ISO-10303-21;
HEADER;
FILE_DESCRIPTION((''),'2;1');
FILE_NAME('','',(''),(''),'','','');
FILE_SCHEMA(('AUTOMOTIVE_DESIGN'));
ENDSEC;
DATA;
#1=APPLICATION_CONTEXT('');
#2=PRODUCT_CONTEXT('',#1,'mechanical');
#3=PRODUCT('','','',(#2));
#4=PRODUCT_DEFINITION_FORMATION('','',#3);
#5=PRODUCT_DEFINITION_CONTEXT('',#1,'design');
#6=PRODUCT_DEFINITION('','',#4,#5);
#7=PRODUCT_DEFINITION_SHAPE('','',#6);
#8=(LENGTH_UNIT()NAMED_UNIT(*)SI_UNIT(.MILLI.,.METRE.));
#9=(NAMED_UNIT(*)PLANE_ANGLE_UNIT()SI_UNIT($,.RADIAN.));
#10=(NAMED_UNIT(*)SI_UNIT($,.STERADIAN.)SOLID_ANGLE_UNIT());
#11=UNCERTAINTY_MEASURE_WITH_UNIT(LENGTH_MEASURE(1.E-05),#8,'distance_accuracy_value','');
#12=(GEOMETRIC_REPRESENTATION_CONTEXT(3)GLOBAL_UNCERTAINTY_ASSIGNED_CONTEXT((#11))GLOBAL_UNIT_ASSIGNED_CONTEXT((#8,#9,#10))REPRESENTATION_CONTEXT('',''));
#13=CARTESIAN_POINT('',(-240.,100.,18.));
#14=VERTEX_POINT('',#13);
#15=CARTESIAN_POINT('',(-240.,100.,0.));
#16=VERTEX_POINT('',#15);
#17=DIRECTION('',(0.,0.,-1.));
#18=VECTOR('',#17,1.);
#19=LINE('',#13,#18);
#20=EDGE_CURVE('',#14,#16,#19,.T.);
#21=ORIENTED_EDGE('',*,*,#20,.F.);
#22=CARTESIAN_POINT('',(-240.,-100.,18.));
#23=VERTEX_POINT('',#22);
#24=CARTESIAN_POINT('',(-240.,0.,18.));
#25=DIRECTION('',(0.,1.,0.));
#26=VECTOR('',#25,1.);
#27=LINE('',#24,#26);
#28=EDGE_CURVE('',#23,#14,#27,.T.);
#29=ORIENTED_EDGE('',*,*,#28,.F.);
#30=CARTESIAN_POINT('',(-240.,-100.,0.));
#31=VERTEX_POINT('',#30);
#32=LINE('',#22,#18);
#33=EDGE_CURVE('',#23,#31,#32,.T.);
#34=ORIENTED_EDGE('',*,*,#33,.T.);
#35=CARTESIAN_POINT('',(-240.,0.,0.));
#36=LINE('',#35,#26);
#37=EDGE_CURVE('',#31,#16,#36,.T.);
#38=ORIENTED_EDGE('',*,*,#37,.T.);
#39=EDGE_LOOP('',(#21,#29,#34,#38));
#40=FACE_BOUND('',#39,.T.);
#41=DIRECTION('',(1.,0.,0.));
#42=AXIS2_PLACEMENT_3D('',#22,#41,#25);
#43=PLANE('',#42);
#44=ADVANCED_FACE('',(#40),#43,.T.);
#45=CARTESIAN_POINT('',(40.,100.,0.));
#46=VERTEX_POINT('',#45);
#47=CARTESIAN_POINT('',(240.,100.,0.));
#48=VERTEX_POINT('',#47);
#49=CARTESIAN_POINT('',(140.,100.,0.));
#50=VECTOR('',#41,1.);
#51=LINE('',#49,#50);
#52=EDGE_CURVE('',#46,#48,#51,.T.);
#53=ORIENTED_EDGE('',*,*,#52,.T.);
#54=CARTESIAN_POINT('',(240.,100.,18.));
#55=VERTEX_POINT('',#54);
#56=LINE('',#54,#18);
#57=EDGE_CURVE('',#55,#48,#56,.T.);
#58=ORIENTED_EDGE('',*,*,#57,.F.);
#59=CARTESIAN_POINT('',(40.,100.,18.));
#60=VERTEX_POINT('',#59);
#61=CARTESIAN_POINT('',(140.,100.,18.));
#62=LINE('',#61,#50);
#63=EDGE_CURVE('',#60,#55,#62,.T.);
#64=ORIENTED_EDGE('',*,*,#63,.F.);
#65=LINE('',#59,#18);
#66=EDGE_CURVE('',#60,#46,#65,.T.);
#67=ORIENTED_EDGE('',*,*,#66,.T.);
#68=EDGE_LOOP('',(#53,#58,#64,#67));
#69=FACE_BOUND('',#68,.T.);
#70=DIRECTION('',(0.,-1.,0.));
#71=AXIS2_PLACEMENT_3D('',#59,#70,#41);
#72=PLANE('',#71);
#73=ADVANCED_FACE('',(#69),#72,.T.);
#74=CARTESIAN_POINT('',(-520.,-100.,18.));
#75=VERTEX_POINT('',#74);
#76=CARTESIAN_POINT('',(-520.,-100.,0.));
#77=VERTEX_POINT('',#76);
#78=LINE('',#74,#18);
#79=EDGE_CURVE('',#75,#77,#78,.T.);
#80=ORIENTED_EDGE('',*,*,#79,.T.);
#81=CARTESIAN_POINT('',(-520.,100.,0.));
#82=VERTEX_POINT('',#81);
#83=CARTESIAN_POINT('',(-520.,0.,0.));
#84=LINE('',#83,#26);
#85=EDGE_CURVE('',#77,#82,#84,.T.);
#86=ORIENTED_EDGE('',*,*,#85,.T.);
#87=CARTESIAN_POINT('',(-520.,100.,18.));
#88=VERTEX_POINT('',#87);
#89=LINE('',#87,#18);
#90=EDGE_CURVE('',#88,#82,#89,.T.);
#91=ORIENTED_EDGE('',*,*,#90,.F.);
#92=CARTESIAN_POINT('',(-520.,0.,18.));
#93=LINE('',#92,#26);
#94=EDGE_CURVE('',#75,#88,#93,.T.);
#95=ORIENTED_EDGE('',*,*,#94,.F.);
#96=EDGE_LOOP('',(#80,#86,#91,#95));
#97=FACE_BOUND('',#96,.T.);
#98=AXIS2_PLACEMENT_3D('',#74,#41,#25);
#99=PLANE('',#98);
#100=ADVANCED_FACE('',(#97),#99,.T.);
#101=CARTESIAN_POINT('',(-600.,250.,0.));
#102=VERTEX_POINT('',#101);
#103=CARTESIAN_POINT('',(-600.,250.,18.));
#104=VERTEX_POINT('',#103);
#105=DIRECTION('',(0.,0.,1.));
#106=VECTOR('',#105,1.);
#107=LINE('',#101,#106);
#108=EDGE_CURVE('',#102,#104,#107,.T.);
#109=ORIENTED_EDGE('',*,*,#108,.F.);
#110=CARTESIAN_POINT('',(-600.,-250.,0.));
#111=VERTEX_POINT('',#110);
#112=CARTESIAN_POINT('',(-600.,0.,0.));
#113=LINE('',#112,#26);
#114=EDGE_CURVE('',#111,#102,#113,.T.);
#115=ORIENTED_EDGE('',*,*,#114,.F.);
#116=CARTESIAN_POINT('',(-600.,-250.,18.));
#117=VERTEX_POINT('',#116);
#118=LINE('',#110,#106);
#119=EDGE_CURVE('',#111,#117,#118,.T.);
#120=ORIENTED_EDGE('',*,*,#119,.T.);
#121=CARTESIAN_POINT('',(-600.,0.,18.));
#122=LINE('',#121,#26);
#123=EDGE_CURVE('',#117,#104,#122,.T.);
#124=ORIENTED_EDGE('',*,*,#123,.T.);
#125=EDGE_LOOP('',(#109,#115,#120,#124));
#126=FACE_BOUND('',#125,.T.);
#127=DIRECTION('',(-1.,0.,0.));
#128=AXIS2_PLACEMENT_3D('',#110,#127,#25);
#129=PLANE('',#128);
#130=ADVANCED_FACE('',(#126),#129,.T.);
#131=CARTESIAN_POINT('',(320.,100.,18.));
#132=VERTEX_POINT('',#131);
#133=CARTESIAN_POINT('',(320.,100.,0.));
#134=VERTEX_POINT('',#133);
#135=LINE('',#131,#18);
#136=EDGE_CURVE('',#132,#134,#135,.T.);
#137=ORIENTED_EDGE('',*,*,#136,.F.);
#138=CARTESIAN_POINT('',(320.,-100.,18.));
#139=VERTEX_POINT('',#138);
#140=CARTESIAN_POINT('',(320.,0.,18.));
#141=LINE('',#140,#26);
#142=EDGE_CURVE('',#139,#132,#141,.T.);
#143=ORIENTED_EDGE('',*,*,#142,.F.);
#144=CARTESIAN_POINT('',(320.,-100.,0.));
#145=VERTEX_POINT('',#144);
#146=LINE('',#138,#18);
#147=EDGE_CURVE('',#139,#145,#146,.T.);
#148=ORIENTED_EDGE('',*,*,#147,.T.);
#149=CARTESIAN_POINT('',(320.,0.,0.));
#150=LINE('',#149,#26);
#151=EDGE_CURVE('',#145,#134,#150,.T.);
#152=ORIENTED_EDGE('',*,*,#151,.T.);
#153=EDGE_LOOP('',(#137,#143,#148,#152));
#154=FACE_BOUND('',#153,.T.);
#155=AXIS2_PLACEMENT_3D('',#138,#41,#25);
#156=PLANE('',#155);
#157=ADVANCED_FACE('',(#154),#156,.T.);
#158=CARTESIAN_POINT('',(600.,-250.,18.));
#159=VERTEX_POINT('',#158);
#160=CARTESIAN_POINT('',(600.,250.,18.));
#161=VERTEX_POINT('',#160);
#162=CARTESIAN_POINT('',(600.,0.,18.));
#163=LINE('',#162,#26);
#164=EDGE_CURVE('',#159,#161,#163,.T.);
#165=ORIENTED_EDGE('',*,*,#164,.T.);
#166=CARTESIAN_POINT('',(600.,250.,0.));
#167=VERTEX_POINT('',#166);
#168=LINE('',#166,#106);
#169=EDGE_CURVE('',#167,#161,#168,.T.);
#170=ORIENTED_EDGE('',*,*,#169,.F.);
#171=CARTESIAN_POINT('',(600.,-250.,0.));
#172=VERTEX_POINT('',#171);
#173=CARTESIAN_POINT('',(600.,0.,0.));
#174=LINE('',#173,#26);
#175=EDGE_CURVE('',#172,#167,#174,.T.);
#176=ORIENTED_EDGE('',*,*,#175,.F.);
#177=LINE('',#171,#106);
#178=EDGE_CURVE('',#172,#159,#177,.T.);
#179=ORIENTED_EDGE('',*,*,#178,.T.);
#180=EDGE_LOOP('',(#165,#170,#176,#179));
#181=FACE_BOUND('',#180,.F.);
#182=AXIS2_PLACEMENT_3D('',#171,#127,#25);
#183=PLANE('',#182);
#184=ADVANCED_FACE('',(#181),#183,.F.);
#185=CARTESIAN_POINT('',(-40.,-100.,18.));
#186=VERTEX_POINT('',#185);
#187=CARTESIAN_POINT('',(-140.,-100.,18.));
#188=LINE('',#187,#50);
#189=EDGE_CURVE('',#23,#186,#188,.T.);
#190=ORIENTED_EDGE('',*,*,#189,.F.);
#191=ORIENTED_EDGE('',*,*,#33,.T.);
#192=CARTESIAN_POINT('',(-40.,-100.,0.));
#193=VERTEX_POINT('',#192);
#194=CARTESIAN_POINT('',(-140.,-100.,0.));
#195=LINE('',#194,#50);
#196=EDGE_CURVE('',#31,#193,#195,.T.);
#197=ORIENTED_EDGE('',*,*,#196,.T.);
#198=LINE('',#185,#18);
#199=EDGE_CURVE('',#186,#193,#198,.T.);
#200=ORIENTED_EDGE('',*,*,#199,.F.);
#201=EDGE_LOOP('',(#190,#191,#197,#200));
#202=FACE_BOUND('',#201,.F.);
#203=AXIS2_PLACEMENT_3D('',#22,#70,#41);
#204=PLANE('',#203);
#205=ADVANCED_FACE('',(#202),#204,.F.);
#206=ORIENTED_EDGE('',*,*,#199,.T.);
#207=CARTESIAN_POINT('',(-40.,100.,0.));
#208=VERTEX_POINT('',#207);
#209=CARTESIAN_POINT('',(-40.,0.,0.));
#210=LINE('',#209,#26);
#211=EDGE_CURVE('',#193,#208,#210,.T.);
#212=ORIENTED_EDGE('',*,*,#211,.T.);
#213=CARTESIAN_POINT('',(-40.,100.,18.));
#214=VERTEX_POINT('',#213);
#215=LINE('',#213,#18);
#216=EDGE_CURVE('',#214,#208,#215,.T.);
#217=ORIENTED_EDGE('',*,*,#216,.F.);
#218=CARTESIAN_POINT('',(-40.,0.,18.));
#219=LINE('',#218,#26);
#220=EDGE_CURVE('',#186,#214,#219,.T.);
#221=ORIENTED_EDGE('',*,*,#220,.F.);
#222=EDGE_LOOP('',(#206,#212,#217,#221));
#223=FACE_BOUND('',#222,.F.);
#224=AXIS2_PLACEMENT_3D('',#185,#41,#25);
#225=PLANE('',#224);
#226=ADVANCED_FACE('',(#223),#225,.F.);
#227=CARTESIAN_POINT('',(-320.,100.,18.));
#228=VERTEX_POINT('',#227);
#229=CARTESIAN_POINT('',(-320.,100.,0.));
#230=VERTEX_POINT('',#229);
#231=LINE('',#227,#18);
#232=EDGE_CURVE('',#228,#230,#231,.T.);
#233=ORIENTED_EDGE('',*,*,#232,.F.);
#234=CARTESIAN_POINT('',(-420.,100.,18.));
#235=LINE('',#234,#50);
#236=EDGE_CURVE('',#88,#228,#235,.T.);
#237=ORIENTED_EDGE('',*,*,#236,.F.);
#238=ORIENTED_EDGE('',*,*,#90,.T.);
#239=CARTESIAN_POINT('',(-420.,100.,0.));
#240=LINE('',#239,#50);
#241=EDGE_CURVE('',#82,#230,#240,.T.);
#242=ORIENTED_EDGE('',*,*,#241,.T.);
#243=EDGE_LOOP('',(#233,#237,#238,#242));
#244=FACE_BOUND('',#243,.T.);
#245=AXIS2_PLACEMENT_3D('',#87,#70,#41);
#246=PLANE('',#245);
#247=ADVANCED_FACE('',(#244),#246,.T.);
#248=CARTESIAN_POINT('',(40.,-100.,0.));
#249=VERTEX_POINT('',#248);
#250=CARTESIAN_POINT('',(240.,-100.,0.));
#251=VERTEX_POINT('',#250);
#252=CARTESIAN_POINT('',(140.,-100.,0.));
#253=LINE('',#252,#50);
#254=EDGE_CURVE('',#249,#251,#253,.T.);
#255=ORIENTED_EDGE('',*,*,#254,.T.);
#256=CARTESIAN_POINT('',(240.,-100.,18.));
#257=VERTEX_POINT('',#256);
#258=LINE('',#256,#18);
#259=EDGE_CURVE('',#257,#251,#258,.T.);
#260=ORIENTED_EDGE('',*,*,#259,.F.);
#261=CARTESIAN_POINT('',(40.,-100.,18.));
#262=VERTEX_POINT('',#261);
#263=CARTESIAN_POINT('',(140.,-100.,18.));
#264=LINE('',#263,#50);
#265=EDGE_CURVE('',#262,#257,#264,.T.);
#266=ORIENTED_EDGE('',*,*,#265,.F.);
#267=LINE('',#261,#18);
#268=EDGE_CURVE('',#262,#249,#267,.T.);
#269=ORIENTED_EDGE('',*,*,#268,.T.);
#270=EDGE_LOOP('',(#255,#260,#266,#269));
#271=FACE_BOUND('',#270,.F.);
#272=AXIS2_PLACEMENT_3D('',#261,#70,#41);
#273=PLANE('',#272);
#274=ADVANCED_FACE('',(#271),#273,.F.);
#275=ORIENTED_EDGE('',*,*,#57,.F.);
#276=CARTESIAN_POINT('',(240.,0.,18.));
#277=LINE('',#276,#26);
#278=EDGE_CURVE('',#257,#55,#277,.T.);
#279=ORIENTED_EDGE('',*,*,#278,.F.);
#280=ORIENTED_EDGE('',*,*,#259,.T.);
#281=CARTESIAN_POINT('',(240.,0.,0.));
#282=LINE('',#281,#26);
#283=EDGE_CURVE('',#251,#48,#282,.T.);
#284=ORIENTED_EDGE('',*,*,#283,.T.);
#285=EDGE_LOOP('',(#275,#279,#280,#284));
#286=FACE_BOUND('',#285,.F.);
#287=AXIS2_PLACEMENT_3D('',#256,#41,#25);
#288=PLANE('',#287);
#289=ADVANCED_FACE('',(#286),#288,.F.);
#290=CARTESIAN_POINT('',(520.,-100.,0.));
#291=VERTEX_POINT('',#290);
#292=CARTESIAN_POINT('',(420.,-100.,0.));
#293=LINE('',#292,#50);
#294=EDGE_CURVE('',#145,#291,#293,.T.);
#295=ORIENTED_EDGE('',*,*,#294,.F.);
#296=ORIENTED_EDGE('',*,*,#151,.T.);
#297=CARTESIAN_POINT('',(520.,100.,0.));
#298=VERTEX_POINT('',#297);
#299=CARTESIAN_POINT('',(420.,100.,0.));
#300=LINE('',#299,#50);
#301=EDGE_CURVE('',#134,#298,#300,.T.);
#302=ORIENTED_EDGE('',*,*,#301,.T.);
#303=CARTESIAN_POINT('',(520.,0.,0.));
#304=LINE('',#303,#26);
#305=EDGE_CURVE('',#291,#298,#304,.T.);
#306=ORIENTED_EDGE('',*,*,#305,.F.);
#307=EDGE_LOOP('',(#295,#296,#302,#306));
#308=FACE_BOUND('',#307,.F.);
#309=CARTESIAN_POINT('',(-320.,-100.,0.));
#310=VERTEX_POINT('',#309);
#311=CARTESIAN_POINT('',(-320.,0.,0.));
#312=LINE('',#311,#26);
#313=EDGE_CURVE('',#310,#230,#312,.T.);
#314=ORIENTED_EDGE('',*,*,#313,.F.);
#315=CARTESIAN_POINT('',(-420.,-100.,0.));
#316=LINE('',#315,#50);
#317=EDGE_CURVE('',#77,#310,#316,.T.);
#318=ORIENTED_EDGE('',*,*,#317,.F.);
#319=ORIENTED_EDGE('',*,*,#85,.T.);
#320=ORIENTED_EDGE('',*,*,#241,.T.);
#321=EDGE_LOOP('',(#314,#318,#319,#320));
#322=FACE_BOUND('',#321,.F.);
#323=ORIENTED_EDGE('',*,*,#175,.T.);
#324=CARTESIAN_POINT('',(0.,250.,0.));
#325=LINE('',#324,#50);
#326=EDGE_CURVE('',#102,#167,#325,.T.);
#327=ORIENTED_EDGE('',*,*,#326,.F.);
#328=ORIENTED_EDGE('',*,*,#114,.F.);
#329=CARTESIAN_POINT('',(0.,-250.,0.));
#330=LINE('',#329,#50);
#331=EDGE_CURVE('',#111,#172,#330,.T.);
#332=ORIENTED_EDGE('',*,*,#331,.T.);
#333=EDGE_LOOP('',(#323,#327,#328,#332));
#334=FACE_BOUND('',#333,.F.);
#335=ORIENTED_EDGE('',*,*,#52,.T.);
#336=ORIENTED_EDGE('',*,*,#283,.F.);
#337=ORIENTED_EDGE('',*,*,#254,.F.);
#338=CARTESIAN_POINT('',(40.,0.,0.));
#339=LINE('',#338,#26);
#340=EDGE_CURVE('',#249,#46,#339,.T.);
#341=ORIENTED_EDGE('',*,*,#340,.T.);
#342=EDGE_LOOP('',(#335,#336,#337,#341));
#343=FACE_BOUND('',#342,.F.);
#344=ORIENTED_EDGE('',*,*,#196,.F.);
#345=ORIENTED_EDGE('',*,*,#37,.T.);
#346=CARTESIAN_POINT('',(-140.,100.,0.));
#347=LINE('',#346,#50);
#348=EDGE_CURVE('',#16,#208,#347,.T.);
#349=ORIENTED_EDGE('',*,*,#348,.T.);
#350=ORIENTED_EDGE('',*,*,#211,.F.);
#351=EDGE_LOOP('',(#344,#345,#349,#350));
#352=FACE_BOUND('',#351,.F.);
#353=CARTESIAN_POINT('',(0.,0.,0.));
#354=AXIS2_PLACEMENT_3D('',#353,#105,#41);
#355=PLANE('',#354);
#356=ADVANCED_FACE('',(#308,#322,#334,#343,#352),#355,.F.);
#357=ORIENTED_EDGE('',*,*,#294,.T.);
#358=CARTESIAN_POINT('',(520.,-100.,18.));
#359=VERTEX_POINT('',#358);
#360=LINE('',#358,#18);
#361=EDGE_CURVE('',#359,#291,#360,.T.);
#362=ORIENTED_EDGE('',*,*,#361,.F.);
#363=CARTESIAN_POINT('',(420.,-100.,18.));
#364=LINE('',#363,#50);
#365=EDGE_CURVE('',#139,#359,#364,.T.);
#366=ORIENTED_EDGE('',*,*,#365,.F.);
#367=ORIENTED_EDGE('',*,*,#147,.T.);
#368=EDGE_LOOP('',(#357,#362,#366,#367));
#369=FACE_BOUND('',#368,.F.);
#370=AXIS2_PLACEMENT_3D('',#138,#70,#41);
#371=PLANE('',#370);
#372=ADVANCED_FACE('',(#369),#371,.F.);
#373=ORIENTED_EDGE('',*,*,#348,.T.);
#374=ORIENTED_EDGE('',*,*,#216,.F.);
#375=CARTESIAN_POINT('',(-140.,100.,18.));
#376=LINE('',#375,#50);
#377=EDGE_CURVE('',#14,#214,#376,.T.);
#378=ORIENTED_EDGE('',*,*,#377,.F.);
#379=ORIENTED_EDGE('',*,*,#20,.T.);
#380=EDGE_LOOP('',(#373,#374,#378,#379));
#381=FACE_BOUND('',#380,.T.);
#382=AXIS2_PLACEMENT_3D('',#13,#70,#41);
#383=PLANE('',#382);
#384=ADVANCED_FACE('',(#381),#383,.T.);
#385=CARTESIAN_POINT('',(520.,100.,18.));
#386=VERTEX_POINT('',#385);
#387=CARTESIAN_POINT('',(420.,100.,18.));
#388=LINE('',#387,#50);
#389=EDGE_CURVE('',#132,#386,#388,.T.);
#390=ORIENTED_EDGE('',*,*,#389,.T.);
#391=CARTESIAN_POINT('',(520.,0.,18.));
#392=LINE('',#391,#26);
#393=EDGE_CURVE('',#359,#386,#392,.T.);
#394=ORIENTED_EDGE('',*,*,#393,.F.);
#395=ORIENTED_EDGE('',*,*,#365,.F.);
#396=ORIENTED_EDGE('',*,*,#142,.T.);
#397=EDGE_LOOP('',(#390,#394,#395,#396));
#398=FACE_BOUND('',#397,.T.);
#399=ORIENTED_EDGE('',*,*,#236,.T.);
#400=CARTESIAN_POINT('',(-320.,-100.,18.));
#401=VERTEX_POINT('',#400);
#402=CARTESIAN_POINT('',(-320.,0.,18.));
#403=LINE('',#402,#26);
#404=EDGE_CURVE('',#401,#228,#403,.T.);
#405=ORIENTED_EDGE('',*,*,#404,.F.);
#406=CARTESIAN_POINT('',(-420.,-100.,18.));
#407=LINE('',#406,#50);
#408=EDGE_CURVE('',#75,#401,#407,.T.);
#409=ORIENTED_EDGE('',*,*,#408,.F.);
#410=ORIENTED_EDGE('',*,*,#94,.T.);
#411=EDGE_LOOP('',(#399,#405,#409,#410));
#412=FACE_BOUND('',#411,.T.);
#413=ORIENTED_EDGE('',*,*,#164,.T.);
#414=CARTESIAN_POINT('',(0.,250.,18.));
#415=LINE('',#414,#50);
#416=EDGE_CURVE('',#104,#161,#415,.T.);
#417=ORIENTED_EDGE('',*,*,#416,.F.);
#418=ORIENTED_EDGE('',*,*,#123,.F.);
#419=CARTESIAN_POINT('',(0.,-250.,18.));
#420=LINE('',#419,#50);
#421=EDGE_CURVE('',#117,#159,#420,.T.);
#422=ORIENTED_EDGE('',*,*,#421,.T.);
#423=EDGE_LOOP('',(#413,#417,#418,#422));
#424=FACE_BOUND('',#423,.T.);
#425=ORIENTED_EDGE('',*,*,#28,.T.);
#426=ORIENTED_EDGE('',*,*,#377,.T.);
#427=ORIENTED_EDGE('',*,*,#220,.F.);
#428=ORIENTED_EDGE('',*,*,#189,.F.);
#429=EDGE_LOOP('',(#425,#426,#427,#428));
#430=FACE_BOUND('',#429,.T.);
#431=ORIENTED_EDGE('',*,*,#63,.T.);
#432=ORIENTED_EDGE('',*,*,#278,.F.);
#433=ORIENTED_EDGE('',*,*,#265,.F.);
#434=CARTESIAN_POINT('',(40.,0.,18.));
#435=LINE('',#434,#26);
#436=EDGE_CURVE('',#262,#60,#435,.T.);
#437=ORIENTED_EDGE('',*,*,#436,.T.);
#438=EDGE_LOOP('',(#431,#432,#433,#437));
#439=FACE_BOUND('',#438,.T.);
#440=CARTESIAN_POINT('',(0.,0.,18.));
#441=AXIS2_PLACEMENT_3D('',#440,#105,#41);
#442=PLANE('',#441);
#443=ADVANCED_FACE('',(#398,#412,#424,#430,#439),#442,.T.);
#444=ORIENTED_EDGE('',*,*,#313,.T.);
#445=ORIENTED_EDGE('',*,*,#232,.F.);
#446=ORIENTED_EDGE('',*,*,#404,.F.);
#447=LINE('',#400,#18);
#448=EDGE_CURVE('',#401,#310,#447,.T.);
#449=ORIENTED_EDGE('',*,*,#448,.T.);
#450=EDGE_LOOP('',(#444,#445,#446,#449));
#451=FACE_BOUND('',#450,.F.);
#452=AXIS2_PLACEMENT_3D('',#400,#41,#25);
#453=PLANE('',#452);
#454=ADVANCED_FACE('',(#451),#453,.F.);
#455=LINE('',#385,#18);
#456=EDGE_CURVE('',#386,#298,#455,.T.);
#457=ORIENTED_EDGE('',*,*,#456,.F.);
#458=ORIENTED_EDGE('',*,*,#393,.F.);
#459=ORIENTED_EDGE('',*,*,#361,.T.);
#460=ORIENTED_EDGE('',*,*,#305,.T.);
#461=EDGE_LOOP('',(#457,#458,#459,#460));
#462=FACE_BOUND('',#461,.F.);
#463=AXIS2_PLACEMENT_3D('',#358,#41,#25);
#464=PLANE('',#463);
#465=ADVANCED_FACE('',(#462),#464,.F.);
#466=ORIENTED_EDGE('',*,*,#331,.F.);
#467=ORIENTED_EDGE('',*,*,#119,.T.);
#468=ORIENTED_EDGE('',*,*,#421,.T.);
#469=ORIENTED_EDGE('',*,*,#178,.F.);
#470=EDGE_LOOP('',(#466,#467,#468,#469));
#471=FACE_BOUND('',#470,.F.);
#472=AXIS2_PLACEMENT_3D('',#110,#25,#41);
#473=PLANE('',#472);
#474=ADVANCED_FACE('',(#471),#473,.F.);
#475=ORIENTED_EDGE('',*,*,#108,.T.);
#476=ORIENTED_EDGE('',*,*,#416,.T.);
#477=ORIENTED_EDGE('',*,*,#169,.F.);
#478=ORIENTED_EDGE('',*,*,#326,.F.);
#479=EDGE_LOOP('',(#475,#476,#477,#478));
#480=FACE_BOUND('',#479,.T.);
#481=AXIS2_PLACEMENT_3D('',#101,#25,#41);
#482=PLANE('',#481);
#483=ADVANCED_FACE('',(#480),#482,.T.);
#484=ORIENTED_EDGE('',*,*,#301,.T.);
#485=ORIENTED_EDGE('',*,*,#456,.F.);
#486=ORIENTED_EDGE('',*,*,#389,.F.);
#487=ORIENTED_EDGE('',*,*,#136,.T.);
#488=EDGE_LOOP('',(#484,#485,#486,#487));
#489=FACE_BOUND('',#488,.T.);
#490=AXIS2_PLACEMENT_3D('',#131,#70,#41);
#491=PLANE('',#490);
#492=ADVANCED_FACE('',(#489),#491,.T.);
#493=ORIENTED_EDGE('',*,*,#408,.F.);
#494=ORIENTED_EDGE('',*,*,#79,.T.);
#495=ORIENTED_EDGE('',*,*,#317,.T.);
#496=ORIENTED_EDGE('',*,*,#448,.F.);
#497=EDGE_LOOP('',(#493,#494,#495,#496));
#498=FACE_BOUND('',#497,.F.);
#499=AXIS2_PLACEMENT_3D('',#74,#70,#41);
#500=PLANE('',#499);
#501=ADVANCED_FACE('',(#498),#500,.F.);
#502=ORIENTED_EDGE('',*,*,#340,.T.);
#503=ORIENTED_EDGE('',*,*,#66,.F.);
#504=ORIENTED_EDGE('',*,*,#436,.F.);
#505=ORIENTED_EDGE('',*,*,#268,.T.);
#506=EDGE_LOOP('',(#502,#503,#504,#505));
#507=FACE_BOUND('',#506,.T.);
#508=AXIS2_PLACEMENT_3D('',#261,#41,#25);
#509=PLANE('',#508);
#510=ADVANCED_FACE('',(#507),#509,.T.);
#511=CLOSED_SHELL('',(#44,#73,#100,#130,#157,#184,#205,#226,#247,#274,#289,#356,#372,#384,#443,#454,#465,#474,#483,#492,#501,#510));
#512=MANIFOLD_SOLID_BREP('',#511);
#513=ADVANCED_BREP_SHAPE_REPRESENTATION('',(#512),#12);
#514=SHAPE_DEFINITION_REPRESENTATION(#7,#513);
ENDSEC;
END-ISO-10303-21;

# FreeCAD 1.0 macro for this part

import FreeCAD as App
import Part
import Sketcher
from FreeCAD import Vector

doc = App.newDocument("Part")
body = doc.addObject("PartDesign::Body", "Body")

# Sketch on XY plane
sketch1 = doc.addObject("Sketcher::SketchObject", "Sketch")
body.addObject(sketch1)
sketch1.AttachmentSupport = (doc.XY_Plane, [""])
sketch1.MapMode = "FlatFace"
sketch1.addGeometry([
    Part.LineSegment(Vector(-600, 250, 0), Vector(-600, -250, 0)),
    Part.LineSegment(Vector(-600, -250, 0), Vector(600, -250, 0)),
    Part.LineSegment(Vector(600, -250, 0), Vector(600, 250, 0)),
    Part.LineSegment(Vector(600, 250, 0), Vector(-600, 250, 0)),
], False)
sketch1.addConstraint([
    Sketcher.Constraint("Coincident", 0, 2, 1, 1),
    Sketcher.Constraint("Coincident", 1, 2, 2, 1),
    Sketcher.Constraint("Coincident", 2, 2, 3, 1),
    Sketcher.Constraint("Coincident", 3, 2, 0, 1),
    Sketcher.Constraint("Vertical", 0),
    Sketcher.Constraint("Horizontal", 1),
    Sketcher.Constraint("Vertical", 2),
    Sketcher.Constraint("Horizontal", 3),
    Sketcher.Constraint("Symmetric", 0, 2, 2, 2, -1, 1),
    Sketcher.Constraint("DistanceX", 1, 1, 1, 2, 1200.0),
    Sketcher.Constraint("DistanceY", 0, 2, 0, 1, 500.0),
])
pad1 = doc.addObject("PartDesign::Pad", "Pad")
body.addObject(pad1)
pad1.Profile = sketch1
pad1.Length = 18

# Sketch on XY plane
sketch2 = doc.addObject("Sketcher::SketchObject", "Sketch001")
body.addObject(sketch2)
sketch2.AttachmentSupport = (doc.XY_Plane, [""])
sketch2.MapMode = "FlatFace"
sketch2.AttachmentOffset = App.Placement(Vector(0, 0, 18), App.Rotation())
sketch2.addGeometry([
    Part.LineSegment(Vector(-520, 100, 0), Vector(-520, -100, 0)),
    Part.LineSegment(Vector(-520, -100, 0), Vector(-320, -100, 0)),
    Part.LineSegment(Vector(-320, -100, 0), Vector(-320, 100, 0)),
    Part.LineSegment(Vector(-320, 100, 0), Vector(-520, 100, 0)),
], False)
sketch2.addConstraint([
    Sketcher.Constraint("Coincident", 0, 2, 1, 1),
    Sketcher.Constraint("Coincident", 1, 2, 2, 1),
    Sketcher.Constraint("Coincident", 2, 2, 3, 1),
    Sketcher.Constraint("Coincident", 3, 2, 0, 1),
    Sketcher.Constraint("Vertical", 0),
    Sketcher.Constraint("Horizontal", 1),
    Sketcher.Constraint("Vertical", 2),
    Sketcher.Constraint("Horizontal", 3),
    Sketcher.Constraint("Equal", 3, 0),
    Sketcher.Constraint("DistanceX", 1, 1, 1, 2, 200.0),
    Sketcher.Constraint("DistanceX", 0, 2, -1, 1, 520.0),
    Sketcher.Constraint("DistanceY", 0, 2, -1, 1, 100.0),
])
pocket1 = doc.addObject("PartDesign::Pocket", "Pocket")
body.addObject(pocket1)
pocket1.Profile = sketch2
pocket1.Length = 18
doc.recompute()

linearpattern = doc.addObject("PartDesign::LinearPattern", "LinearPattern")
body.addObject(linearpattern)
linearpattern.Originals = [pocket1]
linearpattern.Direction = (doc.X_Axis, [""])
linearpattern.Mode = "offset"
linearpattern.Offset = 280
linearpattern.Occurrences = 4
body.Tip = linearpattern

doc.recompute()
